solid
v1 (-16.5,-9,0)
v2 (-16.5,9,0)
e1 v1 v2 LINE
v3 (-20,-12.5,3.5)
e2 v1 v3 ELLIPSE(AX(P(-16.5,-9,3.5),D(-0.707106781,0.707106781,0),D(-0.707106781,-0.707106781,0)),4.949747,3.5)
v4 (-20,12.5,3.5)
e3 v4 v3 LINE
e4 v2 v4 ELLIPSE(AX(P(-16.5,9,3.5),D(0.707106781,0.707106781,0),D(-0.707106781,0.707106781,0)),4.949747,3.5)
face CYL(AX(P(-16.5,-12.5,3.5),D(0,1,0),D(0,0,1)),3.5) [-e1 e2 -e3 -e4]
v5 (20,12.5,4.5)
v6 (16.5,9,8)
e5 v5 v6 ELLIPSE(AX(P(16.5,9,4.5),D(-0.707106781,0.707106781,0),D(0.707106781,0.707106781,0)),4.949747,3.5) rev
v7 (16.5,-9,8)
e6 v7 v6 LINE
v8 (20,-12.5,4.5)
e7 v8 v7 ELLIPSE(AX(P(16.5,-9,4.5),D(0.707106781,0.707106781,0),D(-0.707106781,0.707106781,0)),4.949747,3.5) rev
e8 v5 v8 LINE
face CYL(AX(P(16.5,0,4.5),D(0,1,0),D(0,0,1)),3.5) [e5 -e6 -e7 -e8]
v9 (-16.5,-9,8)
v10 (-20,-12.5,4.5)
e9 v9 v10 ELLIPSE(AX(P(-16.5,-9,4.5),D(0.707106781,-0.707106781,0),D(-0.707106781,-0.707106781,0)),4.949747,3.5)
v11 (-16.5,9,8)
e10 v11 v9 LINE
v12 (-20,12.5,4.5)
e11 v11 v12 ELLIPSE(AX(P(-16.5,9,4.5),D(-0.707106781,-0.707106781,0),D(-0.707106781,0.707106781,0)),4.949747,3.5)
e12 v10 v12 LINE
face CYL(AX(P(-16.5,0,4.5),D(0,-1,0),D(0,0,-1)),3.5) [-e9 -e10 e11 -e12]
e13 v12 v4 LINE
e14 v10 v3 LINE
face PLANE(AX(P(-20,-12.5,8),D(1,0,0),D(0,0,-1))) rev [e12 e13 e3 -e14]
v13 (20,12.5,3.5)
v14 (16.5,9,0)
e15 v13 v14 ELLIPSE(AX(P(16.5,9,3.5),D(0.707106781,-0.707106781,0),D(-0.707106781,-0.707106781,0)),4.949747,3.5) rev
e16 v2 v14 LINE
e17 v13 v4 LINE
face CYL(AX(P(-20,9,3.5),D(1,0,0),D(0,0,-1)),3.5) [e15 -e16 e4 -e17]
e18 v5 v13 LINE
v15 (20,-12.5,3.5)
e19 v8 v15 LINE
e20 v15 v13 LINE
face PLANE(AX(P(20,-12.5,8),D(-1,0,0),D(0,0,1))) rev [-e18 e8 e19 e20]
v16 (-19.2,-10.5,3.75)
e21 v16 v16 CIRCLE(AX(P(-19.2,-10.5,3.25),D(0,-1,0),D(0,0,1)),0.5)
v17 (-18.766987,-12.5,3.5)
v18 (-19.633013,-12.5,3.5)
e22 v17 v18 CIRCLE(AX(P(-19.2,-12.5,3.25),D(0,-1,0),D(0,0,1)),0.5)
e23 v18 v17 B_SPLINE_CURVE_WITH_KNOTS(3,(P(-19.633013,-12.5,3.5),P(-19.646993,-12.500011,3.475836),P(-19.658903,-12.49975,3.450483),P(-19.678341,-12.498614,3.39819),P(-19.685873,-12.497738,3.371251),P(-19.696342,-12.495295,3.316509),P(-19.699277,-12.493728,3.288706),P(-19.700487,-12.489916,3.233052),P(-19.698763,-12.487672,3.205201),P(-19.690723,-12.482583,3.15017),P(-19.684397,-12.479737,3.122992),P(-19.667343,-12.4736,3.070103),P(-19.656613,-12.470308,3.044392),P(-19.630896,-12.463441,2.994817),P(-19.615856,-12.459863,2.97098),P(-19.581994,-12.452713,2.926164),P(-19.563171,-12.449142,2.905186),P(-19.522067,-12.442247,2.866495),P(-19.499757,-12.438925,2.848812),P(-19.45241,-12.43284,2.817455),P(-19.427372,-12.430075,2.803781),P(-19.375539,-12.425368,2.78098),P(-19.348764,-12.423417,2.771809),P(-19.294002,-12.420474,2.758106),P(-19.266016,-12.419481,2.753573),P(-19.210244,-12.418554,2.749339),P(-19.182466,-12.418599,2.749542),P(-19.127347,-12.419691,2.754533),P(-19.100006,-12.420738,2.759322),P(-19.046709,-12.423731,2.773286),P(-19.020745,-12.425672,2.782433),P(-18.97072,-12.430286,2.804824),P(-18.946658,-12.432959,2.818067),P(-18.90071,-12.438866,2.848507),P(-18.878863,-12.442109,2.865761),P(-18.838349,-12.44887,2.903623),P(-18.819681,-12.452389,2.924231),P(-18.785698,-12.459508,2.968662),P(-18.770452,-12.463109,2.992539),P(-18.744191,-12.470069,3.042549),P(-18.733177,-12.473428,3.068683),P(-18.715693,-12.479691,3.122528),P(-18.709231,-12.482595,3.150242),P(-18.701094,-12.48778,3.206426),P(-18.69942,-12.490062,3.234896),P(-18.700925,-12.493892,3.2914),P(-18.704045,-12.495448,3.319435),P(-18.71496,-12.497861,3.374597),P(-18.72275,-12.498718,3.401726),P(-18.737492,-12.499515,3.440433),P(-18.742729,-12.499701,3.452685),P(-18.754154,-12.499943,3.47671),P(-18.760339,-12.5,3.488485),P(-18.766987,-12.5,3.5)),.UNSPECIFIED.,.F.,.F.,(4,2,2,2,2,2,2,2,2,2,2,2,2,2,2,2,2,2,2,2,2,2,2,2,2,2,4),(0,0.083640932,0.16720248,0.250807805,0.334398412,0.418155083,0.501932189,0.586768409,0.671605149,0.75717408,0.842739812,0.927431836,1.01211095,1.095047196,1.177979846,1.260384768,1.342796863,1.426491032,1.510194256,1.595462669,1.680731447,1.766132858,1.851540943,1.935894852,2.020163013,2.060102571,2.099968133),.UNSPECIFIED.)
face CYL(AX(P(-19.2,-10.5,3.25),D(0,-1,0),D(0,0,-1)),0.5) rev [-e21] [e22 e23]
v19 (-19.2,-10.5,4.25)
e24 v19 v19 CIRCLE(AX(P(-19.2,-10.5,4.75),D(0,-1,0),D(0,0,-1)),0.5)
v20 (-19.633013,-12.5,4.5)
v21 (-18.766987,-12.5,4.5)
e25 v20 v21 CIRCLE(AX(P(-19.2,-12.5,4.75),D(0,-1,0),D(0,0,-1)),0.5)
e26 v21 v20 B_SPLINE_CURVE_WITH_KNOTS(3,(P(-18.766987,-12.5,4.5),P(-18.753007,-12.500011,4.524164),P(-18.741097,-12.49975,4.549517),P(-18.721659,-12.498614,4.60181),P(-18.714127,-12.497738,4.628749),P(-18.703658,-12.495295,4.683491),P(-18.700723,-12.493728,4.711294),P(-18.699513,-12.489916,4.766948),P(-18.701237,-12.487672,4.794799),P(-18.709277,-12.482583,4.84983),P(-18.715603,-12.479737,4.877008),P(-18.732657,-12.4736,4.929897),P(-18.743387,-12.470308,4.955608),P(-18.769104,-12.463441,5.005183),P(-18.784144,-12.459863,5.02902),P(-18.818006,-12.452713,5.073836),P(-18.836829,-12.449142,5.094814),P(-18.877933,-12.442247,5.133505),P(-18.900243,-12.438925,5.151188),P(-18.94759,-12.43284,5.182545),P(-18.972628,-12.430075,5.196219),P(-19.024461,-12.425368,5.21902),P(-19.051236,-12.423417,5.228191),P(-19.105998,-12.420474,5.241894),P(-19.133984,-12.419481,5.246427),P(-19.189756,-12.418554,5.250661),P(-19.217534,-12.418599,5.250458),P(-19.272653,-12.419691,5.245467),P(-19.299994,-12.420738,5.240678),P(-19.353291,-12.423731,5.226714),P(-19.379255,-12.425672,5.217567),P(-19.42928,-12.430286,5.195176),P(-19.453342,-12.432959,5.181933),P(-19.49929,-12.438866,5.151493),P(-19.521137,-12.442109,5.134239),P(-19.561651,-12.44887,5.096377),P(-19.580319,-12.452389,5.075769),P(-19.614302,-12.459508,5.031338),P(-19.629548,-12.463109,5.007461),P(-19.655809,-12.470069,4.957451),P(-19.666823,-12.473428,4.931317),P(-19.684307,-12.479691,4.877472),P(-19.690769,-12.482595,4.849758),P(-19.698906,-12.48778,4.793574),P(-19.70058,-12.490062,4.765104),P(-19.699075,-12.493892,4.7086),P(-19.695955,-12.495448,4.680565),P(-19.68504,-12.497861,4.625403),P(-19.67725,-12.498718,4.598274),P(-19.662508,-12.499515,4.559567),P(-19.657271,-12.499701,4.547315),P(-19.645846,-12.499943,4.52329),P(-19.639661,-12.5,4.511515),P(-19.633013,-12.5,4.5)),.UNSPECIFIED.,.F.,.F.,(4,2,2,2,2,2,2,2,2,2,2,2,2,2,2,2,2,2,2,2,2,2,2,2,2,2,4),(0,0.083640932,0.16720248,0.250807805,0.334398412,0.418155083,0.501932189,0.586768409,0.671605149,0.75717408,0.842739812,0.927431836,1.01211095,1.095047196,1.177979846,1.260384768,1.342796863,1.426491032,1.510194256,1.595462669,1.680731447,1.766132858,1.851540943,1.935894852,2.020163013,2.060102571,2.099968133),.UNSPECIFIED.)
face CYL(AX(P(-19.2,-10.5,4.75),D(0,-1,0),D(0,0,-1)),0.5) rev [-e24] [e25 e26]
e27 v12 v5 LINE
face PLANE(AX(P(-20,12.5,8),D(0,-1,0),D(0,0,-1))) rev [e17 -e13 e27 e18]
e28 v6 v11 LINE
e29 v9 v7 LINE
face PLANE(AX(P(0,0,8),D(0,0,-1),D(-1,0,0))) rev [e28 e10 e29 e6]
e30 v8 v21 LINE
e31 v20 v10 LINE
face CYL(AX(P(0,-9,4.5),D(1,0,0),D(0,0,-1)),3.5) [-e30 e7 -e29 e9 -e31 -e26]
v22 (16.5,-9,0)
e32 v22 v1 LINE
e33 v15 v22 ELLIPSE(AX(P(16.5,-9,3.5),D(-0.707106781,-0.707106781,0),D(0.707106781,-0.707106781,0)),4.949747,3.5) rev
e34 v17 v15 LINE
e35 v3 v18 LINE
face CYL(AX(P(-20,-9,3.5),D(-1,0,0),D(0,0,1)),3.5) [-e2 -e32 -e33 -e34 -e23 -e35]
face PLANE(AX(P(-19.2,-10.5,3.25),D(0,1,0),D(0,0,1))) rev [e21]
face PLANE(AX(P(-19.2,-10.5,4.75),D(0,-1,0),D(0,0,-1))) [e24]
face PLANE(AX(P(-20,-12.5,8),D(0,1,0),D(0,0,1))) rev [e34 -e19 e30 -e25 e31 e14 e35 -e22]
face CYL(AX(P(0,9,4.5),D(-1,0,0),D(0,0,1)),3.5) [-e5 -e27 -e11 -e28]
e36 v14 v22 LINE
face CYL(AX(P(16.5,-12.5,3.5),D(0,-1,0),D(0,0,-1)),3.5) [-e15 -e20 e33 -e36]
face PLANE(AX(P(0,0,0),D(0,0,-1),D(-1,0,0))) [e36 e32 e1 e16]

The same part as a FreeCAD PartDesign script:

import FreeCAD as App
import Part
import Sketcher


def edges_at(feature, points):
    """Names of the edges that pass closest to the given points."""
    edges = feature.Shape.Edges
    near = lambda p: min(range(len(edges)), key=lambda i: edges[i].distToShape(Part.Vertex(*p))[0])
    return sorted({f"Edge{near(p) + 1}" for p in points})

doc = App.newDocument("Part")
body = doc.addObject("PartDesign::Body", "Body")

# Sketch on XY plane
sketch1 = body.newObject("Sketcher::SketchObject", "Sketch")
sketch1.AttachmentSupport = (doc.getObject("XY_Plane"), [""])
sketch1.MapMode = "FlatFace"
sketch1.addGeometry(Part.LineSegment(App.Vector(-20, 12, 0), App.Vector(-20, -12, 0)), False)
sketch1.addGeometry(Part.LineSegment(App.Vector(-20, -12, 0), App.Vector(20, -12, 0)), False)
sketch1.addGeometry(Part.LineSegment(App.Vector(20, -12, 0), App.Vector(20, 12, 0)), False)
sketch1.addGeometry(Part.LineSegment(App.Vector(20, 12, 0), App.Vector(-20, 12, 0)), False)
sketch1.addConstraint(Sketcher.Constraint("Coincident", 0, 2, 1, 1))
sketch1.addConstraint(Sketcher.Constraint("Coincident", 1, 2, 2, 1))
sketch1.addConstraint(Sketcher.Constraint("Coincident", 2, 2, 3, 1))
sketch1.addConstraint(Sketcher.Constraint("Coincident", 3, 2, 0, 1))
sketch1.addConstraint(Sketcher.Constraint("Vertical", 0))
sketch1.addConstraint(Sketcher.Constraint("Horizontal", 1))
sketch1.addConstraint(Sketcher.Constraint("Vertical", 2))
sketch1.addConstraint(Sketcher.Constraint("Horizontal", 3))
sketch1.addConstraint(Sketcher.Constraint("Symmetric", 0, 2, 2, 2, -1, 1))
sketch1.addConstraint(Sketcher.Constraint("DistanceX", 1, 1, 1, 2, 40.0))
sketch1.addConstraint(Sketcher.Constraint("DistanceY", 0, 2, 0, 1, 25.0))
pad1 = body.newObject("PartDesign::Pad", "Pad")
pad1.Profile = sketch1
pad1.Length = 8
doc.recompute()

fillet = body.newObject("PartDesign::Fillet", "Fillet")
fillet.Base = (pad1, edges_at(pad1, [
    (-20, 0, 8),
    (0, -12.5, 8),
    (20, 0, 8),
    (0, -12.5, 0),
    (-20, 0, 0),
    (0, 12.5, 0),
    (20, 0, 0),
    (0, 12.5, 8),
]))
fillet.Radius = 3.5

# Sketch on XZ plane
sketch2 = body.newObject("Sketcher::SketchObject", "Sketch001")
sketch2.AttachmentSupport = (doc.getObject("XZ_Plane"), [""])
sketch2.MapMode = "FlatFace"
sketch2.AttachmentOffset = App.Placement(App.Vector(0, 0, 12.5), App.Rotation())
sketch2.addGeometry(Part.Circle(App.Vector(-19.2, 4.8, 0), App.Vector(0, 0, 1), 0.5), False)
sketch2.addGeometry(Part.Circle(App.Vector(-19.2, 3.2, 0), App.Vector(0, 0, 1), 0.5), False)
sketch2.addConstraint(Sketcher.Constraint("Equal", 0, 1))
sketch2.addConstraint(Sketcher.Constraint("Vertical", 0, 3, 1, 3))
sketch2.addConstraint(Sketcher.Constraint("Diameter", 0, 1.0))
sketch2.addConstraint(Sketcher.Constraint("DistanceX", 0, 3, -1, 1, 19.2))
sketch2.addConstraint(Sketcher.Constraint("DistanceY", 1, 3, 0, 3, 1.5))
sketch2.addConstraint(Sketcher.Constraint("DistanceY", -1, 1, 0, 3, 4.75))
pocket1 = body.newObject("PartDesign::Pocket", "Pocket")
pocket1.Profile = sketch2
pocket1.Length = 2

doc.recompute()
